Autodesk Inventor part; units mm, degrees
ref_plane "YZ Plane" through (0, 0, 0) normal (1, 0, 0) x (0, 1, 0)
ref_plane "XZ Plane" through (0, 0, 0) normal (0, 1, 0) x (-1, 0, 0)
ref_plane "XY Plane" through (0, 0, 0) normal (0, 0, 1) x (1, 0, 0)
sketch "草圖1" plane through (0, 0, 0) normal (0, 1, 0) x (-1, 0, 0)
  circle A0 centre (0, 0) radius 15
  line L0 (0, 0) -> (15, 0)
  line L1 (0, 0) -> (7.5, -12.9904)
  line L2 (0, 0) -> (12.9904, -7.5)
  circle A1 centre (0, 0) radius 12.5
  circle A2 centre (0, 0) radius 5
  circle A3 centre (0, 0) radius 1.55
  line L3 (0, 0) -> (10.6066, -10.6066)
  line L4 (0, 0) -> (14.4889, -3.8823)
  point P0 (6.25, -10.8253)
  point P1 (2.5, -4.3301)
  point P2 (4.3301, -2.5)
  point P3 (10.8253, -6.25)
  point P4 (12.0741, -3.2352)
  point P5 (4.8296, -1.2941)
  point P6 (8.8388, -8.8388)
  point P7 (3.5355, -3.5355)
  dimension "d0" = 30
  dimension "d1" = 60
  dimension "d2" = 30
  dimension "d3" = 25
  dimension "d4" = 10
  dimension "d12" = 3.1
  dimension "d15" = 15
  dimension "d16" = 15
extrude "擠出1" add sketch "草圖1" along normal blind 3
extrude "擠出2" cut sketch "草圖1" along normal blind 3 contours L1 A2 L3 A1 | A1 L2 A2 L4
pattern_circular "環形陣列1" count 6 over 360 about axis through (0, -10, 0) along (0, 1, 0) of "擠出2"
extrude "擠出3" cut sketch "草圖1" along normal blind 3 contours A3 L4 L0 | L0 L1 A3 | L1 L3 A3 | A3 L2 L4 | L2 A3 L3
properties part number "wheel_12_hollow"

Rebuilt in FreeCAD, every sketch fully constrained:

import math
import FreeCAD as App
import Part
import Sketcher
Q = App.Units.Quantity

doc = App.newDocument("Part")
body = doc.addObject("PartDesign::Body", "Body")

# Sketch on XZ plane
sketch1 = body.newObject("Sketcher::SketchObject", "Sketch")
sketch1.AttachmentSupport = (doc.getObject("XZ_Plane"), [""])
sketch1.MapMode = "FlatFace"
sketch1.addGeometry(Part.Circle(App.Vector(0, 0, 0), App.Vector(0, 0, 1), 15), False)
sketch1.addConstraint([
    Sketcher.Constraint("Coincident", 0, 3, -1, 1),
    Sketcher.Constraint("Diameter", 0, Q("30 mm")),
])
pad1 = body.newObject("PartDesign::Pad", "Pad")
pad1.Profile = sketch1
pad1.Length = 3
pad1.Reversed = True

# Sketch on XZ plane
sketch2 = body.newObject("Sketcher::SketchObject", "Sketch001")
sketch2.AttachmentSupport = (doc.getObject("XZ_Plane"), [""])
sketch2.MapMode = "FlatFace"
sketch2.addGeometry([
    Part.LineSegment(App.Vector(-2.5, -4.3, 0), App.Vector(-6.2, -10.8, 0)),  # 0
    Part.ArcOfCircle(Part.Circle(App.Vector(0, 0, 0), App.Vector(0, 0, 1), 12.5), math.radians(-135), math.radians(-120)),  # 1
    Part.LineSegment(App.Vector(-8.8, -8.8, 0), App.Vector(-3.5, -3.5, 0)),  # 2
    Part.ArcOfCircle(Part.Circle(App.Vector(0, 0, 0), App.Vector(0, 0, 1), 5), math.radians(-135), math.radians(-120)),  # 3
    Part.ArcOfCircle(Part.Circle(App.Vector(0, 0, 0), App.Vector(0, 0, 1), 12.5), math.radians(-165), math.radians(-150)),  # 4
    Part.LineSegment(App.Vector(-12.1, -3.2, 0), App.Vector(-4.8, -1.3, 0)),  # 5
    Part.ArcOfCircle(Part.Circle(App.Vector(0, 0, 0), App.Vector(0, 0, 1), 5), math.radians(-165), math.radians(-150)),  # 6
    Part.LineSegment(App.Vector(-4.3, -2.5, 0), App.Vector(-10.8, -6.2, 0)),  # 7
], False)
sketch2.addConstraint([
    Sketcher.Constraint("Coincident", 0, 2, 1, 2),
    Sketcher.Constraint("Coincident", 1, 1, 2, 1),
    Sketcher.Constraint("Coincident", 2, 2, 3, 1),
    Sketcher.Constraint("Coincident", 3, 2, 0, 1),
    Sketcher.Constraint("Coincident", 4, 1, 5, 1),
    Sketcher.Constraint("Coincident", 5, 2, 6, 1),
    Sketcher.Constraint("Coincident", 6, 2, 7, 1),
    Sketcher.Constraint("Coincident", 7, 2, 4, 2),
    Sketcher.Constraint("Coincident", 1, 3, -1, 1),
    Sketcher.Constraint("Coincident", 3, 3, -1, 1),
    Sketcher.Constraint("Coincident", 4, 3, -1, 1),
    Sketcher.Constraint("Coincident", 6, 3, -1, 1),
    Sketcher.Constraint("Equal", 1, 4),
    Sketcher.Constraint("Equal", 3, 6),
    Sketcher.Constraint("Radius", 3, Q("5 mm")),
    Sketcher.Constraint("Radius", 1, Q("12.5 mm")),
    Sketcher.Constraint("Angle", 5, Q("15 deg")),
    Sketcher.Constraint("Angle", 0, Q("-120 deg")),
    Sketcher.Constraint("Angle", 2, Q("45 deg")),
    Sketcher.Constraint("Angle", 7, Q("-150 deg")),
    Sketcher.Constraint("DistanceX", 3, 2, -1, 1, Q("2.5 mm")),
    Sketcher.Constraint("DistanceY", 6, 2, -1, 1, Q("2.5 mm")),
    Sketcher.Constraint("DistanceY", 0, 2, 4, 1, Q("7.59 mm")),
    Sketcher.Constraint("DistanceX", 5, 2, 2, 2, Q("1.294 mm")),
])
pocket1 = body.newObject("PartDesign::Pocket", "Pocket")
pocket1.Profile = sketch2
pocket1.Length = 3
doc.recompute()

polarpattern = body.newObject("PartDesign::PolarPattern", "PolarPattern")
polarpattern.Originals = [pocket1]
polarpattern.Axis = (doc.getObject("Y_Axis"), [""])
polarpattern.Angle = 360
polarpattern.Occurrences = 6
body.Tip = polarpattern

# Sketch on XZ plane
sketch3 = body.newObject("Sketcher::SketchObject", "Sketch002")
sketch3.AttachmentSupport = (doc.getObject("XZ_Plane"), [""])
sketch3.MapMode = "FlatFace"
sketch3.addGeometry(Part.Circle(App.Vector(0, 0, 0), App.Vector(0, 0, 1), 1.6), False)
sketch3.addConstraint([
    Sketcher.Constraint("Coincident", 0, 3, -1, 1),
    Sketcher.Constraint("Diameter", 0, Q("3.1 mm")),
])
pocket2 = body.newObject("PartDesign::Pocket", "Pocket001")
pocket2.Profile = sketch3
pocket2.Length = 3

doc.recompute()
